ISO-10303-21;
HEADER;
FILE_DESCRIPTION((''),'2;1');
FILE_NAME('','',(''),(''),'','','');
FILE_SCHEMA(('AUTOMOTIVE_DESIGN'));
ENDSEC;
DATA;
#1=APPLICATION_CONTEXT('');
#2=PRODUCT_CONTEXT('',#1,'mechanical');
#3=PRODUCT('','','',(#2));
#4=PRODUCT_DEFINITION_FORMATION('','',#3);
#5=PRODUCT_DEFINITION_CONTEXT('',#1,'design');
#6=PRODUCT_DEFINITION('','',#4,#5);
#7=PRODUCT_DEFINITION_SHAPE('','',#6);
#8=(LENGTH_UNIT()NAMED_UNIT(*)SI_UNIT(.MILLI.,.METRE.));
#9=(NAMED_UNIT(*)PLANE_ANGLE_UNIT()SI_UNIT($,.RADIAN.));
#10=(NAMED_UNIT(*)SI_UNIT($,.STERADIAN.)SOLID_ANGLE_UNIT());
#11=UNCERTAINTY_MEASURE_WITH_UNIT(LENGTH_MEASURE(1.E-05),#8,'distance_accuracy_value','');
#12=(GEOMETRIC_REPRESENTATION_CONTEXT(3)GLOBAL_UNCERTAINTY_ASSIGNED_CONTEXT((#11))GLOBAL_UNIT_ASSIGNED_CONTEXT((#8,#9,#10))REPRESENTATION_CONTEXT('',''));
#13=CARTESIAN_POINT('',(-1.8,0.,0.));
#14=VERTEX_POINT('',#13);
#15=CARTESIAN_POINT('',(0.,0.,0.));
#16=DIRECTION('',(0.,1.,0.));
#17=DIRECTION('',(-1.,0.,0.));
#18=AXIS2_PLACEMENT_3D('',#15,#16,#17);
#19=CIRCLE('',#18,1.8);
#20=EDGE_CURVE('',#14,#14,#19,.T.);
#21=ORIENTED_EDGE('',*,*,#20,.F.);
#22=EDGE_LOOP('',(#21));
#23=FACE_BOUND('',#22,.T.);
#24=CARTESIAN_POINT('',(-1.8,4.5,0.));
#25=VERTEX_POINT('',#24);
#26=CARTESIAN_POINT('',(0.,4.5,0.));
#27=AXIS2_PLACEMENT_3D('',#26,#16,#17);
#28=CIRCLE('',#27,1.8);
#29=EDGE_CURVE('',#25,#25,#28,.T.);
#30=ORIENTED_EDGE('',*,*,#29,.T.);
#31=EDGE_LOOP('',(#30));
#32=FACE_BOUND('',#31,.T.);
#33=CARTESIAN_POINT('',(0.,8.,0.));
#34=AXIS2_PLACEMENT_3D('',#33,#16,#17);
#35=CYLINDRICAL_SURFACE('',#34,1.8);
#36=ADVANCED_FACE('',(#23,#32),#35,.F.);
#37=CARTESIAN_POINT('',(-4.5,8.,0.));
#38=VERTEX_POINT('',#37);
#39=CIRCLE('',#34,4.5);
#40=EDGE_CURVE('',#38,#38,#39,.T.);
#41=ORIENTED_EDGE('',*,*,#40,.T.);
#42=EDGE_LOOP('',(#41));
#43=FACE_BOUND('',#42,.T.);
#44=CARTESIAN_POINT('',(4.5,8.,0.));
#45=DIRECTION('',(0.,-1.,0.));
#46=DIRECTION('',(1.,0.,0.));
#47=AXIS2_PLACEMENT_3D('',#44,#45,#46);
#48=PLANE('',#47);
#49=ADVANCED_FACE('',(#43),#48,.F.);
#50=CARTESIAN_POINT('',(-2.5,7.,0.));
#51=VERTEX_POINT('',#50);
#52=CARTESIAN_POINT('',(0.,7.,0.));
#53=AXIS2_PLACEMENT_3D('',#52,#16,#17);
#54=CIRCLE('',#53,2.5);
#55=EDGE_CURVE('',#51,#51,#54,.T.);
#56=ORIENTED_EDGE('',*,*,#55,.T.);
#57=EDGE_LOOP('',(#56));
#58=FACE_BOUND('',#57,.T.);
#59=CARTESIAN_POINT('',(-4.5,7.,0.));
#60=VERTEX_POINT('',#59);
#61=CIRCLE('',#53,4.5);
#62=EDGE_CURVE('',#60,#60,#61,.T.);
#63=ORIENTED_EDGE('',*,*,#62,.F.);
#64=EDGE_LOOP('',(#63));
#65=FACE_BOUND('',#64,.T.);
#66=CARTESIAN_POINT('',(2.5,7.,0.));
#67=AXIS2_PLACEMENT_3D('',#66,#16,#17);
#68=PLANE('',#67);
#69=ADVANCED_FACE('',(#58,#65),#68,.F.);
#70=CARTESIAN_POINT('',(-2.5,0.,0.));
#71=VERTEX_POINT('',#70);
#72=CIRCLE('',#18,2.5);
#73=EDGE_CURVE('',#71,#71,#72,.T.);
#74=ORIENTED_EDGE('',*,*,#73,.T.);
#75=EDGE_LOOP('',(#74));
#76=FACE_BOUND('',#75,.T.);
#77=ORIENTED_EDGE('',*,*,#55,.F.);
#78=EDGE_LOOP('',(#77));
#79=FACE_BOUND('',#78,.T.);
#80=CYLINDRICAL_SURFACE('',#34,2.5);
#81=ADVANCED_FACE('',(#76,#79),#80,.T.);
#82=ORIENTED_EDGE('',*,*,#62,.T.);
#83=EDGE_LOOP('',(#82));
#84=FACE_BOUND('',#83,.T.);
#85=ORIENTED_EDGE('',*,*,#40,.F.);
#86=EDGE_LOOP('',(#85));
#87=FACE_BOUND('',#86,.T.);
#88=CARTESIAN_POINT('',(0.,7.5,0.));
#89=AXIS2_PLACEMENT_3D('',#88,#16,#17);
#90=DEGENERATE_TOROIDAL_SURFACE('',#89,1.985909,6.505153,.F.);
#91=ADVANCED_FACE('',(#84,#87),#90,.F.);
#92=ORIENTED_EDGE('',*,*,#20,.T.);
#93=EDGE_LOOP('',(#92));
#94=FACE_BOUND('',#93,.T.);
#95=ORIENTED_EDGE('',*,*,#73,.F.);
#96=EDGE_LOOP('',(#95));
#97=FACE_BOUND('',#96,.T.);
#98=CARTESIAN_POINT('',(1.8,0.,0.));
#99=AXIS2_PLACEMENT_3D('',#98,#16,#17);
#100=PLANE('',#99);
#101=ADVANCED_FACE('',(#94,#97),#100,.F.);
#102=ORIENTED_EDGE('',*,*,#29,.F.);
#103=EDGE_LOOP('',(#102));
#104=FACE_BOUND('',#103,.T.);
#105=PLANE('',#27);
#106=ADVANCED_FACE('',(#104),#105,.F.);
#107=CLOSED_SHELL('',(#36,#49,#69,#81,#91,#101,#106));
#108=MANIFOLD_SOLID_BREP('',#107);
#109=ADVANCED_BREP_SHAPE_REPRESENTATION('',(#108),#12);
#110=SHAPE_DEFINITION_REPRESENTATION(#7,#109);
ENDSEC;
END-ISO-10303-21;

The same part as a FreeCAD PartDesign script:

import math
import FreeCAD as App
import Part
import Sketcher
from FreeCAD import Vector
Q = App.Units.Quantity

doc = App.newDocument("Part")
body = doc.addObject("PartDesign::Body", "Body")

sketch1 = doc.addObject("Sketcher::SketchObject", "Sketch")
body.addObject(sketch1)
sketch1.AttachmentSupport = (doc.XY_Plane, [""])
sketch1.MapMode = "FlatFace"
sketch1.addGeometry(Part.LineSegment(Vector(0, 8, 0), Vector(0, 4.5, 0)), False)
sketch1.addGeometry(Part.LineSegment(Vector(0, 4.5, 0), Vector(1.8, 4.5, 0)), False)
sketch1.addGeometry(Part.LineSegment(Vector(1.8, 4.5, 0), Vector(1.8, 0, 0)), False)
sketch1.addGeometry(Part.LineSegment(Vector(1.8, 0, 0), Vector(2.5, 0, 0)), False)
sketch1.addGeometry(Part.LineSegment(Vector(2.5, 0, 0), Vector(2.5, 7, 0)), False)
sketch1.addGeometry(Part.LineSegment(Vector(2.5, 7, 0), Vector(4.5, 7, 0)), False)
sketch1.addGeometry(Part.ArcOfCircle(Part.Circle(Vector(-1.985909, 7.5, 0), Vector(0, 0, 1), 6.505153), math.radians(-4.408224), math.radians(4.408224)), False)
sketch1.addGeometry(Part.LineSegment(Vector(4.5, 8, 0), Vector(0, 8, 0)), False)
sketch1.addConstraint(Sketcher.Constraint("Coincident", 0, 2, 1, 1))
sketch1.addConstraint(Sketcher.Constraint("Coincident", 1, 2, 2, 1))
sketch1.addConstraint(Sketcher.Constraint("Coincident", 2, 2, 3, 1))
sketch1.addConstraint(Sketcher.Constraint("Coincident", 3, 2, 4, 1))
sketch1.addConstraint(Sketcher.Constraint("Coincident", 4, 2, 5, 1))
sketch1.addConstraint(Sketcher.Constraint("Coincident", 5, 2, 6, 1))
sketch1.addConstraint(Sketcher.Constraint("Coincident", 6, 2, 7, 1))
sketch1.addConstraint(Sketcher.Constraint("Coincident", 7, 2, 0, 1))
sketch1.addConstraint(Sketcher.Constraint("Vertical", 0))
sketch1.addConstraint(Sketcher.Constraint("Horizontal", 1))
sketch1.addConstraint(Sketcher.Constraint("Vertical", 2))
sketch1.addConstraint(Sketcher.Constraint("Horizontal", 3))
sketch1.addConstraint(Sketcher.Constraint("Vertical", 4))
sketch1.addConstraint(Sketcher.Constraint("Horizontal", 5))
sketch1.addConstraint(Sketcher.Constraint("Horizontal", 7))
sketch1.addConstraint(Sketcher.Constraint("PointOnObject", 0, 2, -2))
sketch1.addConstraint(Sketcher.Constraint("PointOnObject", 2, 2, -1))
sketch1.addConstraint(Sketcher.Constraint("Vertical", 5, 2, 6, 2))
sketch1.addConstraint(Sketcher.Constraint("Equal", 7, 2))
sketch1.addConstraint(Sketcher.Constraint("DistanceX", 5, 1, 5, 2, Q("2 mm")))
sketch1.addConstraint(Sketcher.Constraint("DistanceY", 4, 1, 4, 2, Q("7 mm")))
sketch1.addConstraint(Sketcher.Constraint("DistanceX", 1, 1, 1, 2, Q("1.8 mm")))
sketch1.addConstraint(Sketcher.Constraint("DistanceX", 3, 1, 3, 2, Q("0.7 mm")))
sketch1.addConstraint(Sketcher.Constraint("DistanceY", 0, 2, 0, 1, Q("3.5 mm")))
sketch1.addConstraint(Sketcher.Constraint("Radius", 6, Q("6.505153 mm")))
revolution = doc.addObject("PartDesign::Revolution", "Revolution")
body.addObject(revolution)
revolution.Profile = sketch1
revolution.ReferenceAxis = (sketch1, ["V_Axis"])
revolution.Angle = 360

doc.recompute()
